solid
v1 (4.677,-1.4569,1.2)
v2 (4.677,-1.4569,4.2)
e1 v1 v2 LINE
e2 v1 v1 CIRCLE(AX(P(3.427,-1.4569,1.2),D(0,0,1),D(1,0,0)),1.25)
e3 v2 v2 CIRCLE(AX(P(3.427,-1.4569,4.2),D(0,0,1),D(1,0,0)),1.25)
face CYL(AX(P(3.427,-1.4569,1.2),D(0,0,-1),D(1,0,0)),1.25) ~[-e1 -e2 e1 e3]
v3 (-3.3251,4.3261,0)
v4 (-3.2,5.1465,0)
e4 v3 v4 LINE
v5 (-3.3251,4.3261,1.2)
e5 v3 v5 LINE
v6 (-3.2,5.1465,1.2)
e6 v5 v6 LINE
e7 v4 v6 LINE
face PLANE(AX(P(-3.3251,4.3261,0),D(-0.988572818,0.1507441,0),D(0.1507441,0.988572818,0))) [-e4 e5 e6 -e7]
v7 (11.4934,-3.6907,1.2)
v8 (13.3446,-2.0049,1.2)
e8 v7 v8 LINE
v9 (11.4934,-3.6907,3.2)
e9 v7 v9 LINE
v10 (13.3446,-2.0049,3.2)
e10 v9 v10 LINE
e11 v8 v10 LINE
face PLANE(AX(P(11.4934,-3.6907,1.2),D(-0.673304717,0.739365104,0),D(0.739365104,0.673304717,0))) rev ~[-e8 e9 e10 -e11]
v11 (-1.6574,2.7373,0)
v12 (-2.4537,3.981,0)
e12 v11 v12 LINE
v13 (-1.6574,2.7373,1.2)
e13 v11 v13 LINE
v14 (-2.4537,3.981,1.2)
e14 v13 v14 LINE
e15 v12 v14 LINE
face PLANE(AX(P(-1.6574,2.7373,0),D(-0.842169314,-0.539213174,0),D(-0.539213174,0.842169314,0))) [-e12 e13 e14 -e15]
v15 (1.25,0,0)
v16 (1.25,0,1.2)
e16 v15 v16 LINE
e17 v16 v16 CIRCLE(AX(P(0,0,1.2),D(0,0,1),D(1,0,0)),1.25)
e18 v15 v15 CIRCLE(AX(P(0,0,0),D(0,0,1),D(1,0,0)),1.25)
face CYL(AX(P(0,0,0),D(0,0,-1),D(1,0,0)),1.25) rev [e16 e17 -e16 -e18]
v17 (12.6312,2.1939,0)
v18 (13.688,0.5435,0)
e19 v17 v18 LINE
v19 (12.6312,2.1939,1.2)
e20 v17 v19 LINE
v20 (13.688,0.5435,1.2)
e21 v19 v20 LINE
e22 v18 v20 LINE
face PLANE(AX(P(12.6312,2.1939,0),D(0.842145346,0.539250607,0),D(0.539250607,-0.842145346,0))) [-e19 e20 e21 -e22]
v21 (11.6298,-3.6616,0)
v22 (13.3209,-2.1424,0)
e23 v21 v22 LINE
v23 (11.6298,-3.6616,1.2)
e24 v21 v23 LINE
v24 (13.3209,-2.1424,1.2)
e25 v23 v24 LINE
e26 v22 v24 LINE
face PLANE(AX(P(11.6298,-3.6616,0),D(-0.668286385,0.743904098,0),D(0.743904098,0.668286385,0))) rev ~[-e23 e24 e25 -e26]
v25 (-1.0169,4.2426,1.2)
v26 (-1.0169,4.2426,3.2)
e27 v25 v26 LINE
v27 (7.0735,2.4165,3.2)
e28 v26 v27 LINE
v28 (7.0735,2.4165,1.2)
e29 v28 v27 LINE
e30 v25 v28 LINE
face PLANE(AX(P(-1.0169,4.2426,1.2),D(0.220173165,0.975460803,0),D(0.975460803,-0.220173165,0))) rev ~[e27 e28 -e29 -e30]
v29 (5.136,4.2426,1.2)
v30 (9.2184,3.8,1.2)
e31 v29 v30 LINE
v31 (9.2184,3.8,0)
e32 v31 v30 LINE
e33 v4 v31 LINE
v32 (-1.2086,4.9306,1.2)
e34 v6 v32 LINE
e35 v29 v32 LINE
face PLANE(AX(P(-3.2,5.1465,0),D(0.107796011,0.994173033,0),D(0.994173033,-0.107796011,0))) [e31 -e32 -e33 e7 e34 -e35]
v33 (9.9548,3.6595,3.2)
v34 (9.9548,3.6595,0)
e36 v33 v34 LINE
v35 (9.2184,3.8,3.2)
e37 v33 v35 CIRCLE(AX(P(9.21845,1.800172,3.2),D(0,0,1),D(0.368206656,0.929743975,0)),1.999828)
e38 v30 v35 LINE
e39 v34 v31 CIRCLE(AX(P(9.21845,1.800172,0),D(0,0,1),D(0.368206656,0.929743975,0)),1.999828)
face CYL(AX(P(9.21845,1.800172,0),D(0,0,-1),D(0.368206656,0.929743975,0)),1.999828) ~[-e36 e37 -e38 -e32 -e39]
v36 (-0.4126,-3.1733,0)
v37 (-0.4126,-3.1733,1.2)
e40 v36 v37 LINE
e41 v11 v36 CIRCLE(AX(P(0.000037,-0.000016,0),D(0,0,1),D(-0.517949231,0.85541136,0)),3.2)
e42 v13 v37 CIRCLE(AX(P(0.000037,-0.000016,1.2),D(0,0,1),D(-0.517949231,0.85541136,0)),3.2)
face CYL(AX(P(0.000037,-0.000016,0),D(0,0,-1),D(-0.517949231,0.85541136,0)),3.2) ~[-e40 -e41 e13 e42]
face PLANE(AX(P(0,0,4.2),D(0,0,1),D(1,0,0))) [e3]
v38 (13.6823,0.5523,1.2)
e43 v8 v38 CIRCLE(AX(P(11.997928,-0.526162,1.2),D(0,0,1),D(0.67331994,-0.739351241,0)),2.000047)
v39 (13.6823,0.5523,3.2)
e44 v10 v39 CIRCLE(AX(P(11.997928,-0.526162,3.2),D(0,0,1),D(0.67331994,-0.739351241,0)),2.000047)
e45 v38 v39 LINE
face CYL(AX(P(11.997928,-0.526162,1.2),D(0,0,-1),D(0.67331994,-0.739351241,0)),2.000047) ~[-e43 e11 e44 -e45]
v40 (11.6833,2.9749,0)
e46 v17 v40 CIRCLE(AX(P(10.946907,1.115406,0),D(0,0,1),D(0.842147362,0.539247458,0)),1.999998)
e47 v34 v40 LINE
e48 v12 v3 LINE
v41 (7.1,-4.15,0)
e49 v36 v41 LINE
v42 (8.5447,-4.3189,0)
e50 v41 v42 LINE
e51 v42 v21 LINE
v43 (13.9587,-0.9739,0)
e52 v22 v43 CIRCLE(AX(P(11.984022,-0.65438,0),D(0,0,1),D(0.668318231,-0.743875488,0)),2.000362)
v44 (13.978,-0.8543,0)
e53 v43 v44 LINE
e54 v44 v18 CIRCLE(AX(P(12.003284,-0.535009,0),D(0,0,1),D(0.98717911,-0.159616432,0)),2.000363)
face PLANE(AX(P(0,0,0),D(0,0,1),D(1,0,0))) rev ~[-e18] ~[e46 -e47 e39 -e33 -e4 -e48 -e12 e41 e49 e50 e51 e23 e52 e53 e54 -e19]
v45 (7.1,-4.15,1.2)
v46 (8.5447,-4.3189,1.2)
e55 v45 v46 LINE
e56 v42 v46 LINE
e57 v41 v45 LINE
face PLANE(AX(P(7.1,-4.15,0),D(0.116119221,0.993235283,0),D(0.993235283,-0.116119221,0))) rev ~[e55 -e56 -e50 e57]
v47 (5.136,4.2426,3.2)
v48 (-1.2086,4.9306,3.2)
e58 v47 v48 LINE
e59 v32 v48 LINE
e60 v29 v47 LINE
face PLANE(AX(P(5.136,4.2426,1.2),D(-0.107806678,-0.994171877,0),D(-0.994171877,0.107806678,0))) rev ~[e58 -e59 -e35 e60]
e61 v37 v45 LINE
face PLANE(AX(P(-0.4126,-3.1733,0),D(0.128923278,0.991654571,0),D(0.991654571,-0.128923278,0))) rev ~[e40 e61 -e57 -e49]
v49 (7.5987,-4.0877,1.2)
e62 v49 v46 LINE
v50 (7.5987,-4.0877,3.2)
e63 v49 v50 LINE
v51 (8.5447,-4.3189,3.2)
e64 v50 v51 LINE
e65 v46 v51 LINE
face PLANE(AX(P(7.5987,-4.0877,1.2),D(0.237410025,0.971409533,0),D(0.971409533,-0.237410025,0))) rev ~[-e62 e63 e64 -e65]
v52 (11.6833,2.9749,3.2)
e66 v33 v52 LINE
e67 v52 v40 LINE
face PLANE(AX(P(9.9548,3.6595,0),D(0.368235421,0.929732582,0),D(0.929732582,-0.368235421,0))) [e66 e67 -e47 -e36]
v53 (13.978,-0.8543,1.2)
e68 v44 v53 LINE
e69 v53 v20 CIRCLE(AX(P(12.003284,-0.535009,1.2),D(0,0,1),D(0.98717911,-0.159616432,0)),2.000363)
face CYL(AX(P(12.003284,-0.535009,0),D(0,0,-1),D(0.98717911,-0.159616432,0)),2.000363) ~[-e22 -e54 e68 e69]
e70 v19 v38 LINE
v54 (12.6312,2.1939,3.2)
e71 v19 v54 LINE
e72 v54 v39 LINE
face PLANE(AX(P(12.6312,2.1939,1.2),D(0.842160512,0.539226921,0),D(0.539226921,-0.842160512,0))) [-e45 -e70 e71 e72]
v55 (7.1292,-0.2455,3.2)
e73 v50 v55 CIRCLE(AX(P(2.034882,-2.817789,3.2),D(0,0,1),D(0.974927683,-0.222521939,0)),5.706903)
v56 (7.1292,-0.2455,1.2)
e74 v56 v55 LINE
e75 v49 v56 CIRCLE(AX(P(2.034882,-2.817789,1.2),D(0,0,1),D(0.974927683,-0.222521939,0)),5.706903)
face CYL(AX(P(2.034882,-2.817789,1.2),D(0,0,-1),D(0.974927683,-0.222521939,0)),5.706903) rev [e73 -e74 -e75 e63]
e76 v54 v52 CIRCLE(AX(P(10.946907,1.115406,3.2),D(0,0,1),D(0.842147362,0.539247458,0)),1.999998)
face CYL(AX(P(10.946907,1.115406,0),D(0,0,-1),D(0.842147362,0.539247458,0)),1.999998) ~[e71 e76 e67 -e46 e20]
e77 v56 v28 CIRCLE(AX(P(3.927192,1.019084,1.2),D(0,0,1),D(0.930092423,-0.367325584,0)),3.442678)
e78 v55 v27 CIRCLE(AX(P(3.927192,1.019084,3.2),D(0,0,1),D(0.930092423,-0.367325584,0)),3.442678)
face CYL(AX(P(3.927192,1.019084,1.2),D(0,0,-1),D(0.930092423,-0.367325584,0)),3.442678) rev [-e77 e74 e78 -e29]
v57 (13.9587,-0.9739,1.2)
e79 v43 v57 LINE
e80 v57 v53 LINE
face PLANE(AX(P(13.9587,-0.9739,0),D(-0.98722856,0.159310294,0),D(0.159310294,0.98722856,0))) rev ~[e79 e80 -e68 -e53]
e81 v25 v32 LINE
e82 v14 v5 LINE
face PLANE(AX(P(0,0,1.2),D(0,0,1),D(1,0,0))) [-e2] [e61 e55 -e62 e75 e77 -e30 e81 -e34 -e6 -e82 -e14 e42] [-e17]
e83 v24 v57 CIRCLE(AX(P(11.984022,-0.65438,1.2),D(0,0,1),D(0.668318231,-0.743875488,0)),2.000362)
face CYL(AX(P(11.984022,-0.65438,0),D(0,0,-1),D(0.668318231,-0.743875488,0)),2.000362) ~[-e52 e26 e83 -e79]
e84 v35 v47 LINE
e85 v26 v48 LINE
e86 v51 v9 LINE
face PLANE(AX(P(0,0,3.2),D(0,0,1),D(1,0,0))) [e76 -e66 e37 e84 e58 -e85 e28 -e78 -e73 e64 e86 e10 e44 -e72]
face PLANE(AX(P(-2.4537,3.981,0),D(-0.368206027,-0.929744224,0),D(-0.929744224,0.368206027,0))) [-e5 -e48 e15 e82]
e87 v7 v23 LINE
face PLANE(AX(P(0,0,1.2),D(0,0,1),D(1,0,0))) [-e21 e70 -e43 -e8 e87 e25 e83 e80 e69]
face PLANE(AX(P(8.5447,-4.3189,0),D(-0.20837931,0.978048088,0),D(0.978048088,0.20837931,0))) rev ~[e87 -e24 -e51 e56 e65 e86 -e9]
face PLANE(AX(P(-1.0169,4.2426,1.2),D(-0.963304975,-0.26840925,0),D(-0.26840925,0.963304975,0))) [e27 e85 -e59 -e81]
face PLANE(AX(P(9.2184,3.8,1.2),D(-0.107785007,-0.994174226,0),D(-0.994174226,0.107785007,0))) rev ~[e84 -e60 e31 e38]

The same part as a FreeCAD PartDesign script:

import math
import FreeCAD as App
import Part
import Sketcher
from FreeCAD import Vector
Q = App.Units.Quantity

doc = App.newDocument("Part")
params = doc.addObject("Spreadsheet::Sheet", "Params")
for row, (alias, value) in enumerate([
    ("sketch1_radius", "2 mm"),
    ("sketch1_diameter", "2.5 mm"),
    ("sketch1_radius2", "3.2 mm"),
    ("sketch1_length", "0.83 mm"),
    ("pad1_length", "1.2 mm"),
    ("sketch2_radius", "2 mm"),
    ("sketch2_radius2", "2 mm"),
    ("sketch2_radius3", "2 mm"),
    ("sketch2_height", "1.27 mm"),
    ("pad2_length", "2 mm"),
    ("sketch3_diameter", "2.5 mm"),
    ("pad3_length", "3 mm"),
], start=1):
    params.set(f"A{row}", alias)
    params.set(f"B{row}", "=" + value)
    params.setAlias(f"B{row}", alias)

body = doc.addObject("PartDesign::Body", "Body")

sketch1 = body.newObject("Sketcher::SketchObject", "Sketch")
sketch1.AttachmentSupport = (doc.getObject("XY_Plane"), [""])
sketch1.MapMode = "FlatFace"
sketch1.addGeometry(Part.LineSegment(Vector(-2.45, 3.98, 0), Vector(-1.66, 2.74, 0)), False)
sketch1.addGeometry(Part.ArcOfCircle(Part.Circle(Vector(0, 0, 0), Vector(0, 0, 1), 3.2), math.radians(121), math.radians(263)), False)
sketch1.addGeometry(Part.LineSegment(Vector(-0.41, -3.17, 0), Vector(7.1, -4.15, 0)), False)
sketch1.addGeometry(Part.LineSegment(Vector(7.1, -4.15, 0), Vector(8.54, -4.32, 0)), False)
sketch1.addGeometry(Part.LineSegment(Vector(8.54, -4.32, 0), Vector(11.63, -3.66, 0)), False)
sketch1.addGeometry(Part.LineSegment(Vector(11.63, -3.66, 0), Vector(13.32, -2.14, 0)), False)
sketch1.addGeometry(Part.ArcOfCircle(Part.Circle(Vector(11.98, -0.65, 0), Vector(0, 0, 1), 2), math.radians(-48), math.radians(-9)), False)
sketch1.addGeometry(Part.LineSegment(Vector(13.96, -0.97, 0), Vector(13.98, -0.85, 0)), False)
sketch1.addGeometry(Part.ArcOfCircle(Part.Circle(Vector(12, -0.54, 0), Vector(0, 0, 1), 2), math.radians(-9), math.radians(33)), False)
sketch1.addGeometry(Part.LineSegment(Vector(13.69, 0.54, 0), Vector(12.63, 2.19, 0)), False)
sketch1.addGeometry(Part.ArcOfCircle(Part.Circle(Vector(10.95, 1.12, 0), Vector(0, 0, 1), 2), math.radians(33), math.radians(68)), False)
sketch1.addGeometry(Part.LineSegment(Vector(11.68, 2.97, 0), Vector(9.95, 3.66, 0)), False)
sketch1.addGeometry(Part.ArcOfCircle(Part.Circle(Vector(9.22, 1.8, 0), Vector(0, 0, 1), 2), math.radians(68), math.radians(90)), False)
sketch1.addGeometry(Part.LineSegment(Vector(9.22, 3.8, 0), Vector(-3.2, 5.15, 0)), False)
sketch1.addGeometry(Part.LineSegment(Vector(-3.2, 5.15, 0), Vector(-3.33, 4.33, 0)), False)
sketch1.addGeometry(Part.LineSegment(Vector(-3.33, 4.33, 0), Vector(-2.45, 3.98, 0)), False)
sketch1.addGeometry(Part.Circle(Vector(0, 0, 0), Vector(0, 0, 1), 1.25), False)
sketch1.addConstraint(Sketcher.Constraint("Coincident", 0, 2, 1, 1))
sketch1.addConstraint(Sketcher.Constraint("Tangent", 1, 2, 2, 1))
sketch1.addConstraint(Sketcher.Constraint("Coincident", 2, 2, 3, 1))
sketch1.addConstraint(Sketcher.Constraint("Coincident", 3, 2, 4, 1))
sketch1.addConstraint(Sketcher.Constraint("Coincident", 4, 2, 5, 1))
sketch1.addConstraint(Sketcher.Constraint("Tangent", 5, 2, 6, 1))
sketch1.addConstraint(Sketcher.Constraint("Tangent", 6, 2, 7, 1))
sketch1.addConstraint(Sketcher.Constraint("Tangent", 7, 2, 8, 1))
sketch1.addConstraint(Sketcher.Constraint("Tangent", 8, 2, 9, 1))
sketch1.addConstraint(Sketcher.Constraint("Tangent", 9, 2, 10, 1))
sketch1.addConstraint(Sketcher.Constraint("Tangent", 10, 2, 11, 1))
sketch1.addConstraint(Sketcher.Constraint("Tangent", 11, 2, 12, 1))
sketch1.addConstraint(Sketcher.Constraint("Coincident", 12, 2, 13, 1))
sketch1.addConstraint(Sketcher.Constraint("Coincident", 13, 2, 14, 1))
sketch1.addConstraint(Sketcher.Constraint("Coincident", 14, 2, 15, 1))
sketch1.addConstraint(Sketcher.Constraint("Coincident", 15, 2, 0, 1))
sketch1.addConstraint(Sketcher.Constraint("Coincident", 1, 3, -1, 1))
sketch1.addConstraint(Sketcher.Constraint("Coincident", 16, 3, -1, 1))
sketch1.addConstraint(Sketcher.Constraint("Equal", 6, 8))
sketch1.addConstraint(Sketcher.Constraint("Equal", 8, 10))
sketch1.addConstraint(Sketcher.Constraint("Equal", 10, 12))
sketch1.addConstraint(Sketcher.Constraint("Parallel", 0, 9))
sketch1.addConstraint(Sketcher.Constraint("Parallel", 11, 15))
sketch1.addConstraint(Sketcher.Constraint("Radius", 6, Q("2 mm")))
sketch1.addConstraint(Sketcher.Constraint("Diameter", 16, Q("2.5 mm")))
sketch1.addConstraint(Sketcher.Constraint("Radius", 1, Q("3.2 mm")))
sketch1.addConstraint(Sketcher.Constraint("DistanceY", -1, 1, 12, 3, Q("1.8 mm")))
sketch1.addConstraint(Sketcher.Constraint("DistanceY", 2, 2, -1, 1, Q("4.15 mm")))
sketch1.addConstraint(Sketcher.Constraint("DistanceX", -1, 1, 2, 2, Q("7.1 mm")))
sketch1.addConstraint(Sketcher.Constraint("DistanceX", 13, 2, -1, 1, Q("3.2 mm")))
sketch1.addConstraint(Sketcher.Constraint("Angle", 0, Q("-57.37 deg")))
sketch1.addConstraint(Sketcher.Constraint("Angle", 14, Q("-98.67 deg")))
sketch1.addConstraint(Sketcher.Constraint("Distance", 14, Q("0.83 mm")))
sketch1.addConstraint(Sketcher.Constraint("DistanceY", 6, 3, 10, 3, Q("1.77 mm")))
sketch1.addConstraint(Sketcher.Constraint("DistanceX", 8, 2, 7, 2, Q("0.29 mm")))
sketch1.addConstraint(Sketcher.Constraint("DistanceY", 8, 3, 10, 2, Q("3.51 mm")))
sketch1.addConstraint(Sketcher.Constraint("DistanceY", 8, 3, -1, 1, Q("0.535 mm")))
sketch1.addConstraint(Sketcher.Constraint("DistanceX", -1, 1, 10, 3, Q("10.947 mm")))
sketch1.addConstraint(Sketcher.Constraint("DistanceY", 3, 2, -1, 1, Q("4.319 mm")))
sketch1.addConstraint(Sketcher.Constraint("DistanceX", -1, 1, 5, 2, Q("13.321 mm")))
sketch1.addConstraint(Sketcher.Constraint("DistanceY", 6, 2, -1, 1, Q("0.974 mm")))
sketch1.addConstraint(Sketcher.Constraint("DistanceY", -1, 1, 14, 2, Q("4.326 mm")))
sketch1.addConstraint(Sketcher.Constraint("DistanceY", -1, 1, 15, 2, Q("3.981 mm")))
sketch1.addConstraint(Sketcher.Constraint("DistanceX", 3, 2, 8, 3, Q("3.459 mm")))
sketch1.addConstraint(Sketcher.Constraint("DistanceY", 4, 2, 6, 3, Q("3.007 mm")))
sketch1.addConstraint(Sketcher.Constraint("DistanceX", 12, 2, 10, 2, Q("2.465 mm")))
sketch1.setExpression("Constraints[23]", "Params.sketch1_radius")
sketch1.setExpression("Constraints[24]", "Params.sketch1_diameter")
sketch1.setExpression("Constraints[25]", "Params.sketch1_radius2")
sketch1.setExpression("Constraints[32]", "Params.sketch1_length")
pad1 = body.newObject("PartDesign::Pad", "Pad")
pad1.Profile = sketch1
pad1.setExpression("Length", "Params.pad1_length")

sketch2 = body.newObject("Sketcher::SketchObject", "Sketch001")
sketch2.AttachmentSupport = (doc.getObject("XY_Plane"), [""])
sketch2.MapMode = "FlatFace"
sketch2.AttachmentOffset = App.Placement(Vector(0, 0, 1.2), App.Rotation())
sketch2.addGeometry(Part.ArcOfCircle(Part.Circle(Vector(2.0351, -2.8178, 0), Vector(0, 0, 1), 5.706688), math.radians(-12.857579), math.radians(26.791799)), False)
sketch2.addGeometry(Part.LineSegment(Vector(7.5987, -4.0877, 0), Vector(8.5447, -4.3189, 0)), False)
sketch2.addGeometry(Part.LineSegment(Vector(8.5447, -4.3189, 0), Vector(11.493392, -3.690663, 0)), False)
sketch2.addGeometry(Part.LineSegment(Vector(11.4934, -3.6907, 0), Vector(13.3446, -2.0049, 0)), False)
sketch2.addGeometry(Part.ArcOfCircle(Part.Circle(Vector(11.998, -0.5262, 0), Vector(0, 0, 1), 1.999971), math.radians(-47.676977), math.radians(32.632466)), False)
sketch2.addGeometry(Part.LineSegment(Vector(13.6823, 0.5523, 0), Vector(12.6312, 2.1939, 0)), False)
sketch2.addGeometry(Part.ArcOfCircle(Part.Circle(Vector(10.9469, 1.1154, 0), Vector(0, 0, 1), 2.000007), math.radians(32.632466), math.radians(68.395422)), False)
sketch2.addGeometry(Part.LineSegment(Vector(11.6833, 2.9749, 0), Vector(9.9548, 3.6595, 0)), False)
sketch2.addGeometry(Part.ArcOfCircle(Part.Circle(Vector(9.2184, 1.8, 0), Vector(0, 0, 1), 2.000006), math.radians(68.395422), math.radians(90)), False)
sketch2.addGeometry(Part.LineSegment(Vector(9.2184, 3.8, 0), Vector(5.136, 4.2426, 0)), False)
sketch2.addGeometry(Part.LineSegment(Vector(5.136, 4.2426, 0), Vector(-1.2086, 4.9306, 0)), False)
sketch2.addGeometry(Part.LineSegment(Vector(-1.2086, 4.9306, 0), Vector(-1.0169, 4.2426, 0)), False)
sketch2.addGeometry(Part.LineSegment(Vector(-1.0169, 4.2426, 0), Vector(7.0735, 2.4165, 0)), False)
sketch2.addGeometry(Part.ArcOfCircle(Part.Circle(Vector(3.9271, 1.0191, 0), Vector(0, 0, 1), 3.442769), math.radians(-21.550468), math.radians(23.947281)), False)
sketch2.addConstraint(Sketcher.Constraint("Coincident", 0, 1, 1, 1))
sketch2.addConstraint(Sketcher.Constraint("Coincident", 1, 2, 2, 1))
sketch2.addConstraint(Sketcher.Constraint("Coincident", 2, 2, 3, 1))
sketch2.addConstraint(Sketcher.Constraint("Coincident", 3, 2, 4, 1))
sketch2.addConstraint(Sketcher.Constraint("Coincident", 4, 2, 5, 1))
sketch2.addConstraint(Sketcher.Constraint("Coincident", 5, 2, 6, 1))
sketch2.addConstraint(Sketcher.Constraint("Coincident", 6, 2, 7, 1))
sketch2.addConstraint(Sketcher.Constraint("Coincident", 7, 2, 8, 1))
sketch2.addConstraint(Sketcher.Constraint("Coincident", 8, 2, 9, 1))
sketch2.addConstraint(Sketcher.Constraint("Coincident", 9, 2, 10, 1))
sketch2.addConstraint(Sketcher.Constraint("Coincident", 10, 2, 11, 1))
sketch2.addConstraint(Sketcher.Constraint("Coincident", 11, 2, 12, 1))
sketch2.addConstraint(Sketcher.Constraint("Coincident", 12, 2, 13, 2))
sketch2.addConstraint(Sketcher.Constraint("Coincident", 13, 1, 0, 2))
sketch2.addConstraint(Sketcher.Constraint("Radius", 4, Q("2 mm")))
sketch2.addConstraint(Sketcher.Constraint("Radius", 6, Q("2 mm")))
sketch2.addConstraint(Sketcher.Constraint("Radius", 8, Q("2 mm")))
sketch2.addConstraint(Sketcher.Constraint("DistanceY", -1, 1, 8, 3, Q("1.8 mm")))
sketch2.addConstraint(Sketcher.Constraint("Radius", 0, Q("5.7067 mm")))
sketch2.addConstraint(Sketcher.Constraint("Radius", 13, Q("3.4428 mm")))
sketch2.addConstraint(Sketcher.Constraint("DistanceX", 1, 2, 3, 2, Q("4.8 mm")))
sketch2.addConstraint(Sketcher.Constraint("DistanceY", 0, 1, 0, 3, Q("1.27 mm")))
sketch2.addConstraint(Sketcher.Constraint("DistanceY", 4, 3, 5, 2, Q("2.72 mm")))
sketch2.addConstraint(Sketcher.Constraint("Distance", 12, Q("8.294 mm")))
sketch2.addConstraint(Sketcher.Constraint("DistanceX", -1, 1, 0, 3, Q("2.035 mm")))
sketch2.addConstraint(Sketcher.Constraint("DistanceX", -1, 1, 4, 3, Q("11.998 mm")))
sketch2.addConstraint(Sketcher.Constraint("DistanceX", -1, 1, 6, 3, Q("10.947 mm")))
sketch2.addConstraint(Sketcher.Constraint("DistanceX", -1, 1, 13, 3, Q("3.927 mm")))
sketch2.addConstraint(Sketcher.Constraint("DistanceY", -1, 1, 13, 3, Q("1.019 mm")))
sketch2.addConstraint(Sketcher.Constraint("DistanceY", 1, 2, -1, 1, Q("4.319 mm")))
sketch2.addConstraint(Sketcher.Constraint("DistanceY", 3, 2, -1, 1, Q("2.005 mm")))
sketch2.addConstraint(Sketcher.Constraint("DistanceY", -1, 1, 5, 2, Q("2.194 mm")))
sketch2.addConstraint(Sketcher.Constraint("DistanceY", -1, 1, 6, 2, Q("2.975 mm")))
sketch2.addConstraint(Sketcher.Constraint("DistanceX", -1, 1, 9, 2, Q("5.136 mm")))
sketch2.addConstraint(Sketcher.Constraint("DistanceX", 11, 2, -1, 1, Q("1.017 mm")))
sketch2.addConstraint(Sketcher.Constraint("DistanceY", 0, 3, 13, 3, Q("3.837 mm")))
sketch2.addConstraint(Sketcher.Constraint("DistanceY", 0, 1, 6, 3, Q("5.203 mm")))
sketch2.addConstraint(Sketcher.Constraint("DistanceY", 0, 1, 2, 2, Q("0.397 mm")))
sketch2.addConstraint(Sketcher.Constraint("DistanceX", 8, 3, 2, 2, Q("2.275 mm")))
sketch2.addConstraint(Sketcher.Constraint("DistanceY", 4, 2, 6, 3, Q("0.563 mm")))
sketch2.addConstraint(Sketcher.Constraint("DistanceX", 8, 3, 6, 2, Q("2.465 mm")))
sketch2.addConstraint(Sketcher.Constraint("DistanceX", 7, 2, 6, 3, Q("0.992 mm")))
sketch2.addConstraint(Sketcher.Constraint("DistanceX", 8, 2, 6, 2, Q("2.465 mm")))
sketch2.addConstraint(Sketcher.Constraint("DistanceY", 7, 2, 9, 2, Q("0.583 mm")))
sketch2.addConstraint(Sketcher.Constraint("DistanceY", 9, 2, 10, 2, Q("0.688 mm")))
sketch2.addConstraint(Sketcher.Constraint("DistanceX", 10, 2, 8, 2, Q("10.427 mm")))
sketch2.addConstraint(Sketcher.Constraint("DistanceY", 11, 2, 10, 2, Q("0.688 mm")))
sketch2.setExpression("Constraints[14]", "Params.sketch2_radius")
sketch2.setExpression("Constraints[15]", "Params.sketch2_radius2")
sketch2.setExpression("Constraints[16]", "Params.sketch2_radius3")
sketch2.setExpression("Constraints[21]", "Params.sketch2_height")
pad2 = body.newObject("PartDesign::Pad", "Pad001")
pad2.Profile = sketch2
pad2.setExpression("Length", "Params.pad2_length")

sketch3 = body.newObject("Sketcher::SketchObject", "Sketch002")
sketch3.AttachmentSupport = (doc.getObject("XY_Plane"), [""])
sketch3.MapMode = "FlatFace"
sketch3.AttachmentOffset = App.Placement(Vector(0, 0, 1.2), App.Rotation())
sketch3.addGeometry(Part.Circle(Vector(3.4, -1.5, 0), Vector(0, 0, 1), 1.2), False)
sketch3.addConstraint(Sketcher.Constraint("Diameter", 0, Q("2.5 mm")))
sketch3.addConstraint(Sketcher.Constraint("DistanceX", -1, 1, 0, 3, Q("3.427 mm")))
sketch3.addConstraint(Sketcher.Constraint("DistanceY", 0, 3, -1, 1, Q("1.457 mm")))
sketch3.setExpression("Constraints[0]", "Params.sketch3_diameter")
pad3 = body.newObject("PartDesign::Pad", "Pad002")
pad3.Profile = sketch3
pad3.setExpression("Length", "Params.pad3_length")

doc.recompute()
